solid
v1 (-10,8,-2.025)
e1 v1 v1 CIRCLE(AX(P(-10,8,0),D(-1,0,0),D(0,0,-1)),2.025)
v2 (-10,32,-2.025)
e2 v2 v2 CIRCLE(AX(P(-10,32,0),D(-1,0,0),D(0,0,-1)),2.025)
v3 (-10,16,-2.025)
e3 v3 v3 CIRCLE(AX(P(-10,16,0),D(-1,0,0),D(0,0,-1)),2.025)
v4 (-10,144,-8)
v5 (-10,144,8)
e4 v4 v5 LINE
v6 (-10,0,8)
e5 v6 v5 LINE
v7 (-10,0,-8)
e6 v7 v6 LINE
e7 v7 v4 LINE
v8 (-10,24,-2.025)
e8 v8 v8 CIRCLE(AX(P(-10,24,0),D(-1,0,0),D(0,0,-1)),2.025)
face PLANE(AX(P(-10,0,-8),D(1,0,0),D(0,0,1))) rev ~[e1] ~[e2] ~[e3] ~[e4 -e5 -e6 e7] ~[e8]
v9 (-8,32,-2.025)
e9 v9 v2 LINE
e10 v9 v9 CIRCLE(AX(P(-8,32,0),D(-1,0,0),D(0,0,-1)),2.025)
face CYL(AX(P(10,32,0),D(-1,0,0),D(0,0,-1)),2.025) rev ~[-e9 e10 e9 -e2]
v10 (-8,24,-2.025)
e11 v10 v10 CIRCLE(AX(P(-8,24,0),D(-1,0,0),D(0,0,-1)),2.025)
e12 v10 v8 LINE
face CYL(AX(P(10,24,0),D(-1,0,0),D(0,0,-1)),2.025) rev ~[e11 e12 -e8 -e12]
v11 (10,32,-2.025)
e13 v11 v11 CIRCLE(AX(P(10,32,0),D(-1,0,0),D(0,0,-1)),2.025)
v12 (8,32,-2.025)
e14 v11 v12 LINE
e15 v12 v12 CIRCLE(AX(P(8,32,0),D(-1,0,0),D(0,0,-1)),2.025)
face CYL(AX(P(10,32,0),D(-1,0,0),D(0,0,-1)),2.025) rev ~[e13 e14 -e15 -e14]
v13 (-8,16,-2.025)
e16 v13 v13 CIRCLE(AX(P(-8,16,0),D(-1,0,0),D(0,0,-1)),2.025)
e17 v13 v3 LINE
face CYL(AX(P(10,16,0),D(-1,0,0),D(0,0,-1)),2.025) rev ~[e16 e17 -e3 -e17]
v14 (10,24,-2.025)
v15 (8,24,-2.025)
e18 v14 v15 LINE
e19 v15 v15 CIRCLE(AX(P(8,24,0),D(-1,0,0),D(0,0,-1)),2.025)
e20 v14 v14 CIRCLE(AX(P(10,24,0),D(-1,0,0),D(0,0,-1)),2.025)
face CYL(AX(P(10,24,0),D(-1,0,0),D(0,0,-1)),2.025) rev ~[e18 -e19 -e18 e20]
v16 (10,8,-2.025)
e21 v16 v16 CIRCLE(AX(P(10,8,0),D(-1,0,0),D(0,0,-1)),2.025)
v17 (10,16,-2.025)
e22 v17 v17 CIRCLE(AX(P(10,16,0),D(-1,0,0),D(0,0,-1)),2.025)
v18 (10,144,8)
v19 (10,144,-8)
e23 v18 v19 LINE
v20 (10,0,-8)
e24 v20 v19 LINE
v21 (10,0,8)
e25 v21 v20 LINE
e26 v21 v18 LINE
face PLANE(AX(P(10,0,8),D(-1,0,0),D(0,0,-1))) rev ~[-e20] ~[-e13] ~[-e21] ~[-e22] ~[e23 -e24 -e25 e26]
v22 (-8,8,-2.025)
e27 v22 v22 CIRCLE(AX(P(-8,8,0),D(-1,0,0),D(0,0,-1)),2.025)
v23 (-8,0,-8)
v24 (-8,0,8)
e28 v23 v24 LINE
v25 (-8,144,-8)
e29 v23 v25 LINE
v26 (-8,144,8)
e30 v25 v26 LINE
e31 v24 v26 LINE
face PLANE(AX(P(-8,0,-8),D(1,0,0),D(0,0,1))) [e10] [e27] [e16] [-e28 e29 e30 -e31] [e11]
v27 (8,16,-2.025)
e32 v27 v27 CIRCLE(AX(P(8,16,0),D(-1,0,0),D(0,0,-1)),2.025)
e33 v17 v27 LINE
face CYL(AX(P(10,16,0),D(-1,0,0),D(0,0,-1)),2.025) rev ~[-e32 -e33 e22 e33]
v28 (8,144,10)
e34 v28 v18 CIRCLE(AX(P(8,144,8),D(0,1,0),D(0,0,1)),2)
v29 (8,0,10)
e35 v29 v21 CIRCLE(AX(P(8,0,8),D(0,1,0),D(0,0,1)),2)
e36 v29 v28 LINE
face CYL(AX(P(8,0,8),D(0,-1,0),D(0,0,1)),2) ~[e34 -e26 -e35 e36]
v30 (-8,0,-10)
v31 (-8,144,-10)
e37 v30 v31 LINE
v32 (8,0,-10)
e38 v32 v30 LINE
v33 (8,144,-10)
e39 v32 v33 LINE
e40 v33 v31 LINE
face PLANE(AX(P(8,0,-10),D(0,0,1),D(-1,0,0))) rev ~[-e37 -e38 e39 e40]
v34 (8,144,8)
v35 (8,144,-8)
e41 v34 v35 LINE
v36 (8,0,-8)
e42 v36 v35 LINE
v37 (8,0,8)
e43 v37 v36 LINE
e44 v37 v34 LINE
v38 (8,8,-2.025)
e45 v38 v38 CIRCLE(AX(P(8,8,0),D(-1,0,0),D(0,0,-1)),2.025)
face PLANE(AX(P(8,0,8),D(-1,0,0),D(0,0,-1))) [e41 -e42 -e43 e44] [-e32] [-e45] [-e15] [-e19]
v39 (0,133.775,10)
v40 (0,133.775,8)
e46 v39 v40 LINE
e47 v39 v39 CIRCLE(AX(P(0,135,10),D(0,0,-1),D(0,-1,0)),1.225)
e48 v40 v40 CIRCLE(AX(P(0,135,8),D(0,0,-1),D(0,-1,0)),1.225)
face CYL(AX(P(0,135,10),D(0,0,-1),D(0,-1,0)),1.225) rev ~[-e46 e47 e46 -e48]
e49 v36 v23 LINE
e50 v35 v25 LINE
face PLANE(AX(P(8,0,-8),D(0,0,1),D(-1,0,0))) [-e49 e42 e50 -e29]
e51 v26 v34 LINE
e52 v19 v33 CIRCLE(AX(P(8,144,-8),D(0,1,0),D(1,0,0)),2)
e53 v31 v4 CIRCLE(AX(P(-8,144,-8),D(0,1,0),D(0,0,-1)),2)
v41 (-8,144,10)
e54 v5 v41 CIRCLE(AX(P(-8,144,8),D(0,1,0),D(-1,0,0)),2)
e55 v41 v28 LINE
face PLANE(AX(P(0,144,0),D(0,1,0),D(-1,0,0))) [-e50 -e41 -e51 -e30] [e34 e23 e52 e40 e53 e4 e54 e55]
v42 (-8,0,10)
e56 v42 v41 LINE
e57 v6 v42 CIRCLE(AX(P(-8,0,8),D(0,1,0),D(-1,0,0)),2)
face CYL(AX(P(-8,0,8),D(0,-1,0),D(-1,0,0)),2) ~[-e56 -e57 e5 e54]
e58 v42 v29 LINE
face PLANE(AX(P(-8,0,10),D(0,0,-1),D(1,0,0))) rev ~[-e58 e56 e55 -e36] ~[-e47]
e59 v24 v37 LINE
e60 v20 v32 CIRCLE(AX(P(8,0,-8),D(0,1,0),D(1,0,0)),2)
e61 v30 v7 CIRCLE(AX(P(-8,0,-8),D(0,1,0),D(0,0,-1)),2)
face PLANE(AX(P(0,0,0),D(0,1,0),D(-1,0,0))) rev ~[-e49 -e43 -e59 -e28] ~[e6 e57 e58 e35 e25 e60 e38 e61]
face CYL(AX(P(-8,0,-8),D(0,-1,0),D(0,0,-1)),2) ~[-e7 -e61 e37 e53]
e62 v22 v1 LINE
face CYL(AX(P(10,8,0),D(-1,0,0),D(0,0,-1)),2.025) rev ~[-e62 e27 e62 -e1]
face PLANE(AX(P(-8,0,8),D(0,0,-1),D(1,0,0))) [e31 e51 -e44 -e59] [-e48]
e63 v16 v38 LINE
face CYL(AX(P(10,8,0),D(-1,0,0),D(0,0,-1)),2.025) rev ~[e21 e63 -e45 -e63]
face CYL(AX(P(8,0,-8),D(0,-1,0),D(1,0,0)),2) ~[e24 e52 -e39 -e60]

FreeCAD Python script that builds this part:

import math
import FreeCAD as App
import Part
import Sketcher


def add_polygon(sketch, points):
    """Adds a closed chain of lines whose ends are joined by coincident constraints."""
    first, n = sketch.GeometryCount, len(points)
    for a, b in zip(points, points[1:] + points[:1]):
        sketch.addGeometry(Part.LineSegment(App.Vector(*a, 0), App.Vector(*b, 0)), False)
    for i in range(n):
        sketch.addConstraint(Sketcher.Constraint("Coincident", first + i, 2, first + (i + 1) % n, 1))

doc = App.newDocument("Part")
body = doc.addObject("PartDesign::Body", "Body")

sketch1 = body.newObject("Sketcher::SketchObject", "Sketch")
sketch1.AttachmentSupport = (doc.getObject("XZ_Plane"), [""])
sketch1.MapMode = "FlatFace"
sketch1.addGeometry(Part.ArcOfCircle(Part.Circle(App.Vector(-8, 8, 0), App.Vector(0, 0, 1), 2), math.radians(90), math.radians(180)), False)
sketch1.addGeometry(Part.LineSegment(App.Vector(-8, 10, 0), App.Vector(8, 10, 0)), False)
sketch1.addGeometry(Part.ArcOfCircle(Part.Circle(App.Vector(8, 8, 0), App.Vector(0, 0, 1), 2), math.radians(0), math.radians(90)), False)
sketch1.addGeometry(Part.LineSegment(App.Vector(10, 8, 0), App.Vector(10, -8, 0)), False)
sketch1.addGeometry(Part.ArcOfCircle(Part.Circle(App.Vector(8, -8, 0), App.Vector(0, 0, 1), 2), math.radians(-90), math.radians(0)), False)
sketch1.addGeometry(Part.LineSegment(App.Vector(8, -10, 0), App.Vector(-8, -10, 0)), False)
sketch1.addGeometry(Part.ArcOfCircle(Part.Circle(App.Vector(-8, -8, 0), App.Vector(0, 0, 1), 2), math.radians(180), math.radians(270)), False)
sketch1.addGeometry(Part.LineSegment(App.Vector(-10, -8, 0), App.Vector(-10, 8, 0)), False)
add_polygon(sketch1, [(8, 8), (-8, 8), (-8, -8), (8, -8)])
sketch1.addConstraint(Sketcher.Constraint("Tangent", 0, 1, 1, 1))
sketch1.addConstraint(Sketcher.Constraint("Tangent", 1, 2, 2, 2))
sketch1.addConstraint(Sketcher.Constraint("Tangent", 2, 1, 3, 1))
sketch1.addConstraint(Sketcher.Constraint("Tangent", 3, 2, 4, 2))
sketch1.addConstraint(Sketcher.Constraint("Tangent", 4, 1, 5, 1))
sketch1.addConstraint(Sketcher.Constraint("Tangent", 5, 2, 6, 2))
sketch1.addConstraint(Sketcher.Constraint("Tangent", 6, 1, 7, 1))
sketch1.addConstraint(Sketcher.Constraint("Tangent", 7, 2, 0, 2))
sketch1.addConstraint(Sketcher.Constraint("Horizontal", 1))
sketch1.addConstraint(Sketcher.Constraint("Vertical", 3))
sketch1.addConstraint(Sketcher.Constraint("Horizontal", 5))
sketch1.addConstraint(Sketcher.Constraint("Vertical", 7))
sketch1.addConstraint(Sketcher.Constraint("Horizontal", 8))
sketch1.addConstraint(Sketcher.Constraint("Vertical", 9))
sketch1.addConstraint(Sketcher.Constraint("Horizontal", 10))
sketch1.addConstraint(Sketcher.Constraint("Vertical", 11))
sketch1.addConstraint(Sketcher.Constraint("Coincident", 8, 2, 0, 3))
sketch1.addConstraint(Sketcher.Constraint("Coincident", 9, 2, 6, 3))
sketch1.addConstraint(Sketcher.Constraint("Coincident", 10, 2, 4, 3))
sketch1.addConstraint(Sketcher.Constraint("Equal", 0, 2))
sketch1.addConstraint(Sketcher.Constraint("Symmetric", 0, 3, 4, 3, -1, 1))
sketch1.addConstraint(Sketcher.Constraint("Equal", 10, 3))
sketch1.addConstraint(Sketcher.Constraint("Radius", 0, 2.0))
sketch1.addConstraint(Sketcher.Constraint("DistanceX", 1, 1, 1, 2, 16.0))
pad1 = body.newObject("PartDesign::Pad", "Pad")
pad1.Profile = sketch1
pad1.Length = 144
pad1.Reversed = True

sketch2 = body.newObject("Sketcher::SketchObject", "Sketch001")
sketch2.AttachmentSupport = (doc.getObject("YZ_Plane"), [""])
sketch2.MapMode = "FlatFace"
sketch2.AttachmentOffset = App.Placement(App.Vector(0, 0, 10), App.Rotation())
sketch2.addGeometry(Part.Circle(App.Vector(8, 0, 0), App.Vector(0, 0, 1), 2), False)
sketch2.addGeometry(Part.Circle(App.Vector(16, 0, 0), App.Vector(0, 0, 1), 2), False)
sketch2.addGeometry(Part.Circle(App.Vector(24, 0, 0), App.Vector(0, 0, 1), 2), False)
sketch2.addGeometry(Part.Circle(App.Vector(32, 0, 0), App.Vector(0, 0, 1), 2), False)
sketch2.addConstraint(Sketcher.Constraint("Equal", 0, 1))
sketch2.addConstraint(Sketcher.Constraint("Equal", 1, 2))
sketch2.addConstraint(Sketcher.Constraint("Equal", 2, 3))
sketch2.addConstraint(Sketcher.Constraint("PointOnObject", 0, 3, -1))
sketch2.addConstraint(Sketcher.Constraint("PointOnObject", 1, 3, -1))
sketch2.addConstraint(Sketcher.Constraint("PointOnObject", 2, 3, -1))
sketch2.addConstraint(Sketcher.Constraint("PointOnObject", 3, 3, -1))
sketch2.addConstraint(Sketcher.Constraint("Diameter", 0, 4.05))
sketch2.addConstraint(Sketcher.Constraint("DistanceX", -1, 1, 0, 3, 8.0))
sketch2.addConstraint(Sketcher.Constraint("DistanceX", -1, 1, 1, 3, 16.0))
sketch2.addConstraint(Sketcher.Constraint("DistanceX", -1, 1, 2, 3, 24.0))
sketch2.addConstraint(Sketcher.Constraint("DistanceX", -1, 1, 3, 3, 32.0))
doc.recompute()
hole = body.newObject("PartDesign::Hole", "Hole")
hole.Profile = sketch2
hole.ThreadType = "None"
hole.Diameter = 4.05
hole.DepthType = "ThroughAll"

sketch3 = body.newObject("Sketcher::SketchObject", "Sketch002")
sketch3.AttachmentSupport = (doc.getObject("XY_Plane"), [""])
sketch3.MapMode = "FlatFace"
sketch3.AttachmentOffset = App.Placement(App.Vector(0, 0, 10), App.Rotation())
sketch3.addGeometry(Part.Circle(App.Vector(0, 135, 0), App.Vector(0, 0, 1), 1.2), False)
sketch3.addConstraint(Sketcher.Constraint("PointOnObject", 0, 3, -2))
sketch3.addConstraint(Sketcher.Constraint("Diameter", 0, 2.45))
sketch3.addConstraint(Sketcher.Constraint("DistanceY", -1, 1, 0, 3, 135.0))
doc.recompute()
hole2 = body.newObject("PartDesign::Hole", "Hole001")
hole2.Profile = sketch3
hole2.ThreadType = "None"
hole2.Diameter = 2.45
hole2.DepthType = "Dimension"
hole2.Depth = 2
hole2.DrillPoint = "Flat"

doc.recompute()
